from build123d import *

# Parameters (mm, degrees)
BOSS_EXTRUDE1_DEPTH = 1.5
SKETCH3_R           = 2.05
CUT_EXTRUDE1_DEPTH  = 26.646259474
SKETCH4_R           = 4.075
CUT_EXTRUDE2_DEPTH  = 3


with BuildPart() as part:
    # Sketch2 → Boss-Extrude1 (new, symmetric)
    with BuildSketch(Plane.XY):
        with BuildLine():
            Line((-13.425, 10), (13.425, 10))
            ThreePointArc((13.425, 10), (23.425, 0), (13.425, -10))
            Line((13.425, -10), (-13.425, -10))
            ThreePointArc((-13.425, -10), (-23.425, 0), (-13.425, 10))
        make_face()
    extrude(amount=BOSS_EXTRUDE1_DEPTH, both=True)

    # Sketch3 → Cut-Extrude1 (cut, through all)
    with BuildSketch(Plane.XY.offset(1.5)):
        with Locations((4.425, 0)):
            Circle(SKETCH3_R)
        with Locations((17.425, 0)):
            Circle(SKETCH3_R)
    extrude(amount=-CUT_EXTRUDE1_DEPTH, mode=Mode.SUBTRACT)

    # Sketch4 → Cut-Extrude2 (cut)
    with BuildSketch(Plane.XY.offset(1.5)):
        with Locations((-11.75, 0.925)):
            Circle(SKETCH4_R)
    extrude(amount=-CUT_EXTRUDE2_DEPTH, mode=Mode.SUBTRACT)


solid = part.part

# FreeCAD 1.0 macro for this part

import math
import FreeCAD as App
import Part
import Sketcher
from FreeCAD import Vector
Q = App.Units.Quantity

doc = App.newDocument("Part")
body = doc.addObject("PartDesign::Body", "Body")

sketch1 = doc.addObject("Sketcher::SketchObject", "Sketch")
body.addObject(sketch1)
sketch1.AttachmentSupport = (doc.XY_Plane, [""])
sketch1.MapMode = "FlatFace"
sketch1.addGeometry([
    Part.LineSegment(Vector(13.425, 10, 0), Vector(-13.425, 10, 0)),
    Part.ArcOfCircle(Part.Circle(Vector(-13.425, 0, 0), Vector(0, 0, 1), 10), math.radians(90), math.radians(270)),
    Part.LineSegment(Vector(-13.425, -10, 0), Vector(13.425, -10, 0)),
    Part.ArcOfCircle(Part.Circle(Vector(13.425, 0, 0), Vector(0, 0, 1), 10), math.radians(-90), math.radians(90)),
], False)
sketch1.addConstraint([
    Sketcher.Constraint("Tangent", 0, 2, 1, 1),
    Sketcher.Constraint("Tangent", 1, 2, 2, 1),
    Sketcher.Constraint("Tangent", 2, 2, 3, 1),
    Sketcher.Constraint("Tangent", 3, 2, 0, 1),
    Sketcher.Constraint("Horizontal", 0),
    Sketcher.Constraint("Horizontal", 2),
    Sketcher.Constraint("Symmetric", 1, 3, 3, 3, -1, 1),
    Sketcher.Constraint("Radius", 1, Q("10 mm")),
    Sketcher.Constraint("DistanceX", 0, 2, 0, 1, Q("26.85 mm")),
])
pad1 = doc.addObject("PartDesign::Pad", "Pad")
body.addObject(pad1)
pad1.Profile = sketch1
pad1.Length = 3
pad1.Midplane = True

sketch2 = doc.addObject("Sketcher::SketchObject", "Sketch001")
body.addObject(sketch2)
sketch2.AttachmentSupport = (doc.XY_Plane, [""])
sketch2.MapMode = "FlatFace"
sketch2.AttachmentOffset = App.Placement(Vector(0, 0, 1.5), App.Rotation())
sketch2.addGeometry([
    Part.Circle(Vector(4.425, 0, 0), Vector(0, 0, 1), 2.05),
    Part.Circle(Vector(17.425, 0, 0), Vector(0, 0, 1), 2.05),
], False)
sketch2.addConstraint([
    Sketcher.Constraint("Equal", 0, 1),
    Sketcher.Constraint("PointOnObject", 0, 3, -1),
    Sketcher.Constraint("PointOnObject", 1, 3, -1),
    Sketcher.Constraint("Diameter", 0, Q("4.1 mm")),
    Sketcher.Constraint("DistanceX", 0, 3, 1, 3, Q("13 mm")),
    Sketcher.Constraint("DistanceX", -1, 1, 0, 3, Q("4.425 mm")),
])
pocket1 = doc.addObject("PartDesign::Pocket", "Pocket")
body.addObject(pocket1)
pocket1.Profile = sketch2
pocket1.Type = "ThroughAll"

sketch3 = doc.addObject("Sketcher::SketchObject", "Sketch002")
body.addObject(sketch3)
sketch3.AttachmentSupport = (doc.XY_Plane, [""])
sketch3.MapMode = "FlatFace"
sketch3.AttachmentOffset = App.Placement(Vector(0, 0, 1.5), App.Rotation())
sketch3.addGeometry(Part.Circle(Vector(-11.75, 0.925, 0), Vector(0, 0, 1), 4.075), False)
sketch3.addConstraint([
    Sketcher.Constraint("Diameter", 0, Q("8.15 mm")),
    Sketcher.Constraint("DistanceX", 0, 3, -1, 1, Q("11.75 mm")),
    Sketcher.Constraint("DistanceY", -1, 1, 0, 3, Q("0.925 mm")),
])
pocket2 = doc.addObject("PartDesign::Pocket", "Pocket001")
body.addObject(pocket2)
pocket2.Profile = sketch3
pocket2.Length = 3

doc.recompute()
